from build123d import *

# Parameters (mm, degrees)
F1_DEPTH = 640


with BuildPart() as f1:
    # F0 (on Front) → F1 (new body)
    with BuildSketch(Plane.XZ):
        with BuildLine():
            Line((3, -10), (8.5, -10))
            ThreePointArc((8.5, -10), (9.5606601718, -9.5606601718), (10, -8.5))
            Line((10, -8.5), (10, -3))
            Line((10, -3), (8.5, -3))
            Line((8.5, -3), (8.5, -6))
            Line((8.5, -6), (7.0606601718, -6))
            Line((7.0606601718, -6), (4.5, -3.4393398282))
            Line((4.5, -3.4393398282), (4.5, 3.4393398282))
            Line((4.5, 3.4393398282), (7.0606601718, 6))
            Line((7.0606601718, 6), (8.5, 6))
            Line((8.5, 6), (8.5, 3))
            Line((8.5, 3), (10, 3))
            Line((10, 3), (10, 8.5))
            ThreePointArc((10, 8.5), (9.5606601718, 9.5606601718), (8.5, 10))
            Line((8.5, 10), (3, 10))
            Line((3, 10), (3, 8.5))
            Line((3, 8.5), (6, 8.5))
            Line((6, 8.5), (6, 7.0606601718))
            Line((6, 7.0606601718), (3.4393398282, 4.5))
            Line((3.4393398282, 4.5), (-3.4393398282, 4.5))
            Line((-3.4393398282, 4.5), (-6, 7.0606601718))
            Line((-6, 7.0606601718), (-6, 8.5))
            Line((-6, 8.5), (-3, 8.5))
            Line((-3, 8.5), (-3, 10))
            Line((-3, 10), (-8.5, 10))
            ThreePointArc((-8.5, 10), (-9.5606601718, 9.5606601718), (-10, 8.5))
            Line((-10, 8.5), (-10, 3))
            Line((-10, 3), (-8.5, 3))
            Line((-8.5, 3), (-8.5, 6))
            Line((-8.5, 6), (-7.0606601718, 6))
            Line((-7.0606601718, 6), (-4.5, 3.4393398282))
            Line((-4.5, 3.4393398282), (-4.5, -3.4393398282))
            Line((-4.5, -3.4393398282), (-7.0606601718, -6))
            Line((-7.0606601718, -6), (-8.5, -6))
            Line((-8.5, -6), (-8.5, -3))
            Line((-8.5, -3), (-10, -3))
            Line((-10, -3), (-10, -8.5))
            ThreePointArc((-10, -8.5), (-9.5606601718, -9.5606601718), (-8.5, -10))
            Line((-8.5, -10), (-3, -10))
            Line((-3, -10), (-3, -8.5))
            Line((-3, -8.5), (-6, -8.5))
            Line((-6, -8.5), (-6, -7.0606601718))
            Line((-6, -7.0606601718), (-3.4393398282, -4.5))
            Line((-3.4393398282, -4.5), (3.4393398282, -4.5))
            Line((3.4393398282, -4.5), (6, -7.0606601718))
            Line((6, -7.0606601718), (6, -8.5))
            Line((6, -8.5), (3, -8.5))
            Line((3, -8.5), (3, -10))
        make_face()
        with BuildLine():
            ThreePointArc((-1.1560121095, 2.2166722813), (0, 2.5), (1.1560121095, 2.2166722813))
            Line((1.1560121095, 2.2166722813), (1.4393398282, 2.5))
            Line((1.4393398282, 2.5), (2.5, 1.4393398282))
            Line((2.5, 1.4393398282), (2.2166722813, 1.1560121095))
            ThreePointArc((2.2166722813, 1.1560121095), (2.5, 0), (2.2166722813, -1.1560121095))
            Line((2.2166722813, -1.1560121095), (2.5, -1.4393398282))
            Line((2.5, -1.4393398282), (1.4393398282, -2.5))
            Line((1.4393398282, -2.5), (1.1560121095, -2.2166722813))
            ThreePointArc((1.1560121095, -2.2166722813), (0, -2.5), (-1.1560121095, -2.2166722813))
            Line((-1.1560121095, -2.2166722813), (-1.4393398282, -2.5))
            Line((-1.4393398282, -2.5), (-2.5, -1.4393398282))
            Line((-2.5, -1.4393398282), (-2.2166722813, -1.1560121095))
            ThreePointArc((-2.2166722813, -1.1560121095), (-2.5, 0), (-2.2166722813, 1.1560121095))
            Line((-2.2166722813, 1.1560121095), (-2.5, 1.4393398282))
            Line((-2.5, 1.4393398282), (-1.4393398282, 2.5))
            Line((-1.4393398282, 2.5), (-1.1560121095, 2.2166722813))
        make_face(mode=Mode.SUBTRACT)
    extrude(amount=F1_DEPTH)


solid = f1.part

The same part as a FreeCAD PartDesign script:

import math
import FreeCAD as App
import Part
import Sketcher
from FreeCAD import Vector

doc = App.newDocument("Part")
body = doc.addObject("PartDesign::Body", "Body")

# Sketch on XZ plane
sketch1 = doc.addObject("Sketcher::SketchObject", "Sketch")
body.addObject(sketch1)
sketch1.AttachmentSupport = (doc.XZ_Plane, [""])
sketch1.MapMode = "FlatFace"
sketch1.addGeometry(Part.LineSegment(Vector(3, -10, 0), Vector(8.5, -10, 0)), False)
sketch1.addGeometry(Part.ArcOfCircle(Part.Circle(Vector(8.5, -8.5, 0), Vector(0, 0, 1), 1.5), math.radians(-90), math.radians(0)), False)
sketch1.addGeometry(Part.LineSegment(Vector(10, -8.5, 0), Vector(10, -3, 0)), False)
sketch1.addGeometry(Part.LineSegment(Vector(10, -3, 0), Vector(8.5, -3, 0)), False)
sketch1.addGeometry(Part.LineSegment(Vector(8.5, -3, 0), Vector(8.5, -6, 0)), False)
sketch1.addGeometry(Part.LineSegment(Vector(8.5, -6, 0), Vector(7.06, -6, 0)), False)
sketch1.addGeometry(Part.LineSegment(Vector(7.06, -6, 0), Vector(4.5, -3.44, 0)), False)
sketch1.addGeometry(Part.LineSegment(Vector(4.5, -3.44, 0), Vector(4.5, 3.44, 0)), False)
sketch1.addGeometry(Part.LineSegment(Vector(4.5, 3.44, 0), Vector(7.06, 6, 0)), False)
sketch1.addGeometry(Part.LineSegment(Vector(7.06, 6, 0), Vector(8.5, 6, 0)), False)
sketch1.addGeometry(Part.LineSegment(Vector(8.5, 6, 0), Vector(8.5, 3, 0)), False)
sketch1.addGeometry(Part.LineSegment(Vector(8.5, 3, 0), Vector(10, 3, 0)), False)
sketch1.addGeometry(Part.LineSegment(Vector(10, 3, 0), Vector(10, 8.5, 0)), False)
sketch1.addGeometry(Part.ArcOfCircle(Part.Circle(Vector(8.5, 8.5, 0), Vector(0, 0, 1), 1.5), math.radians(0), math.radians(90)), False)
sketch1.addGeometry(Part.LineSegment(Vector(8.5, 10, 0), Vector(3, 10, 0)), False)
sketch1.addGeometry(Part.LineSegment(Vector(3, 10, 0), Vector(3, 8.5, 0)), False)
sketch1.addGeometry(Part.LineSegment(Vector(3, 8.5, 0), Vector(6, 8.5, 0)), False)
sketch1.addGeometry(Part.LineSegment(Vector(6, 8.5, 0), Vector(6, 7.06, 0)), False)
sketch1.addGeometry(Part.LineSegment(Vector(6, 7.06, 0), Vector(3.44, 4.5, 0)), False)
sketch1.addGeometry(Part.LineSegment(Vector(3.44, 4.5, 0), Vector(-3.44, 4.5, 0)), False)
sketch1.addGeometry(Part.LineSegment(Vector(-3.44, 4.5, 0), Vector(-6, 7.06, 0)), False)
sketch1.addGeometry(Part.LineSegment(Vector(-6, 7.06, 0), Vector(-6, 8.5, 0)), False)
sketch1.addGeometry(Part.LineSegment(Vector(-6, 8.5, 0), Vector(-3, 8.5, 0)), False)
sketch1.addGeometry(Part.LineSegment(Vector(-3, 8.5, 0), Vector(-3, 10, 0)), False)
sketch1.addGeometry(Part.LineSegment(Vector(-3, 10, 0), Vector(-8.5, 10, 0)), False)
sketch1.addGeometry(Part.ArcOfCircle(Part.Circle(Vector(-8.5, 8.5, 0), Vector(0, 0, 1), 1.5), math.radians(90), math.radians(180)), False)
sketch1.addGeometry(Part.LineSegment(Vector(-10, 8.5, 0), Vector(-10, 3, 0)), False)
sketch1.addGeometry(Part.LineSegment(Vector(-10, 3, 0), Vector(-8.5, 3, 0)), False)
sketch1.addGeometry(Part.LineSegment(Vector(-8.5, 3, 0), Vector(-8.5, 6, 0)), False)
sketch1.addGeometry(Part.LineSegment(Vector(-8.5, 6, 0), Vector(-7.06, 6, 0)), False)
sketch1.addGeometry(Part.LineSegment(Vector(-7.06, 6, 0), Vector(-4.5, 3.44, 0)), False)
sketch1.addGeometry(Part.LineSegment(Vector(-4.5, 3.44, 0), Vector(-4.5, -3.44, 0)), False)
sketch1.addGeometry(Part.LineSegment(Vector(-4.5, -3.44, 0), Vector(-7.06, -6, 0)), False)
sketch1.addGeometry(Part.LineSegment(Vector(-7.06, -6, 0), Vector(-8.5, -6, 0)), False)
sketch1.addGeometry(Part.LineSegment(Vector(-8.5, -6, 0), Vector(-8.5, -3, 0)), False)
sketch1.addGeometry(Part.LineSegment(Vector(-8.5, -3, 0), Vector(-10, -3, 0)), False)
sketch1.addGeometry(Part.LineSegment(Vector(-10, -3, 0), Vector(-10, -8.5, 0)), False)
sketch1.addGeometry(Part.ArcOfCircle(Part.Circle(Vector(-8.5, -8.5, 0), Vector(0, 0, 1), 1.5), math.radians(180), math.radians(270)), False)
sketch1.addGeometry(Part.LineSegment(Vector(-8.5, -10, 0), Vector(-3, -10, 0)), False)
sketch1.addGeometry(Part.LineSegment(Vector(-3, -10, 0), Vector(-3, -8.5, 0)), False)
sketch1.addGeometry(Part.LineSegment(Vector(-3, -8.5, 0), Vector(-6, -8.5, 0)), False)
sketch1.addGeometry(Part.LineSegment(Vector(-6, -8.5, 0), Vector(-6, -7.06, 0)), False)
sketch1.addGeometry(Part.LineSegment(Vector(-6, -7.06, 0), Vector(-3.44, -4.5, 0)), False)
sketch1.addGeometry(Part.LineSegment(Vector(-3.44, -4.5, 0), Vector(3.44, -4.5, 0)), False)
sketch1.addGeometry(Part.LineSegment(Vector(3.44, -4.5, 0), Vector(6, -7.06, 0)), False)
sketch1.addGeometry(Part.LineSegment(Vector(6, -7.06, 0), Vector(6, -8.5, 0)), False)
sketch1.addGeometry(Part.LineSegment(Vector(6, -8.5, 0), Vector(3, -8.5, 0)), False)
sketch1.addGeometry(Part.LineSegment(Vector(3, -8.5, 0), Vector(3, -10, 0)), False)
sketch1.addGeometry(Part.LineSegment(Vector(-1.44, 2.5, 0), Vector(-1.16, 2.22, 0)), False)
sketch1.addGeometry(Part.ArcOfCircle(Part.Circle(Vector(0, 0, 0), Vector(0, 0, 1), 2.5), math.radians(62), math.radians(118)), False)
sketch1.addGeometry(Part.LineSegment(Vector(1.16, 2.22, 0), Vector(1.44, 2.5, 0)), False)
sketch1.addGeometry(Part.LineSegment(Vector(1.44, 2.5, 0), Vector(2.5, 1.44, 0)), False)
sketch1.addGeometry(Part.LineSegment(Vector(2.5, 1.44, 0), Vector(2.22, 1.16, 0)), False)
sketch1.addGeometry(Part.ArcOfCircle(Part.Circle(Vector(0, 0, 0), Vector(0, 0, 1), 2.5), math.radians(-28), math.radians(28)), False)
sketch1.addGeometry(Part.LineSegment(Vector(2.22, -1.16, 0), Vector(2.5, -1.44, 0)), False)
sketch1.addGeometry(Part.LineSegment(Vector(2.5, -1.44, 0), Vector(1.44, -2.5, 0)), False)
sketch1.addGeometry(Part.LineSegment(Vector(1.44, -2.5, 0), Vector(1.16, -2.22, 0)), False)
sketch1.addGeometry(Part.ArcOfCircle(Part.Circle(Vector(0, 0, 0), Vector(0, 0, 1), 2.5), math.radians(-118), math.radians(-62)), False)
sketch1.addGeometry(Part.LineSegment(Vector(-1.16, -2.22, 0), Vector(-1.44, -2.5, 0)), False)
sketch1.addGeometry(Part.LineSegment(Vector(-1.44, -2.5, 0), Vector(-2.5, -1.44, 0)), False)
sketch1.addGeometry(Part.LineSegment(Vector(-2.5, -1.44, 0), Vector(-2.22, -1.16, 0)), False)
sketch1.addGeometry(Part.ArcOfCircle(Part.Circle(Vector(0, 0, 0), Vector(0, 0, 1), 2.5), math.radians(152), math.radians(208)), False)
sketch1.addGeometry(Part.LineSegment(Vector(-2.22, 1.16, 0), Vector(-2.5, 1.44, 0)), False)
sketch1.addGeometry(Part.LineSegment(Vector(-2.5, 1.44, 0), Vector(-1.44, 2.5, 0)), False)
sketch1.addConstraint(Sketcher.Constraint("Tangent", 0, 2, 1, 1))
sketch1.addConstraint(Sketcher.Constraint("Tangent", 1, 2, 2, 1))
sketch1.addConstraint(Sketcher.Constraint("Coincident", 2, 2, 3, 1))
sketch1.addConstraint(Sketcher.Constraint("Coincident", 3, 2, 4, 1))
sketch1.addConstraint(Sketcher.Constraint("Coincident", 4, 2, 5, 1))
sketch1.addConstraint(Sketcher.Constraint("Coincident", 5, 2, 6, 1))
sketch1.addConstraint(Sketcher.Constraint("Coincident", 6, 2, 7, 1))
sketch1.addConstraint(Sketcher.Constraint("Coincident", 7, 2, 8, 1))
sketch1.addConstraint(Sketcher.Constraint("Coincident", 8, 2, 9, 1))
sketch1.addConstraint(Sketcher.Constraint("Coincident", 9, 2, 10, 1))
sketch1.addConstraint(Sketcher.Constraint("Coincident", 10, 2, 11, 1))
sketch1.addConstraint(Sketcher.Constraint("Coincident", 11, 2, 12, 1))
sketch1.addConstraint(Sketcher.Constraint("Tangent", 12, 2, 13, 1))
sketch1.addConstraint(Sketcher.Constraint("Tangent", 13, 2, 14, 1))
sketch1.addConstraint(Sketcher.Constraint("Coincident", 14, 2, 15, 1))
sketch1.addConstraint(Sketcher.Constraint("Coincident", 15, 2, 16, 1))
sketch1.addConstraint(Sketcher.Constraint("Coincident", 16, 2, 17, 1))
sketch1.addConstraint(Sketcher.Constraint("Coincident", 17, 2, 18, 1))
sketch1.addConstraint(Sketcher.Constraint("Coincident", 18, 2, 19, 1))
sketch1.addConstraint(Sketcher.Constraint("Coincident", 19, 2, 20, 1))
sketch1.addConstraint(Sketcher.Constraint("Coincident", 20, 2, 21, 1))
sketch1.addConstraint(Sketcher.Constraint("Coincident", 21, 2, 22, 1))
sketch1.addConstraint(Sketcher.Constraint("Coincident", 22, 2, 23, 1))
sketch1.addConstraint(Sketcher.Constraint("Coincident", 23, 2, 24, 1))
sketch1.addConstraint(Sketcher.Constraint("Tangent", 24, 2, 25, 1))
sketch1.addConstraint(Sketcher.Constraint("Tangent", 25, 2, 26, 1))
sketch1.addConstraint(Sketcher.Constraint("Coincident", 26, 2, 27, 1))
sketch1.addConstraint(Sketcher.Constraint("Coincident", 27, 2, 28, 1))
sketch1.addConstraint(Sketcher.Constraint("Coincident", 28, 2, 29, 1))
sketch1.addConstraint(Sketcher.Constraint("Coincident", 29, 2, 30, 1))
sketch1.addConstraint(Sketcher.Constraint("Coincident", 30, 2, 31, 1))
sketch1.addConstraint(Sketcher.Constraint("Coincident", 31, 2, 32, 1))
sketch1.addConstraint(Sketcher.Constraint("Coincident", 32, 2, 33, 1))
sketch1.addConstraint(Sketcher.Constraint("Coincident", 33, 2, 34, 1))
sketch1.addConstraint(Sketcher.Constraint("Coincident", 34, 2, 35, 1))
sketch1.addConstraint(Sketcher.Constraint("Coincident", 35, 2, 36, 1))
sketch1.addConstraint(Sketcher.Constraint("Tangent", 36, 2, 37, 1))
sketch1.addConstraint(Sketcher.Constraint("Tangent", 37, 2, 38, 1))
sketch1.addConstraint(Sketcher.Constraint("Coincident", 38, 2, 39, 1))
sketch1.addConstraint(Sketcher.Constraint("Coincident", 39, 2, 40, 1))
sketch1.addConstraint(Sketcher.Constraint("Coincident", 40, 2, 41, 1))
sketch1.addConstraint(Sketcher.Constraint("Coincident", 41, 2, 42, 1))
sketch1.addConstraint(Sketcher.Constraint("Coincident", 42, 2, 43, 1))
sketch1.addConstraint(Sketcher.Constraint("Coincident", 43, 2, 44, 1))
sketch1.addConstraint(Sketcher.Constraint("Coincident", 44, 2, 45, 1))
sketch1.addConstraint(Sketcher.Constraint("Coincident", 45, 2, 46, 1))
sketch1.addConstraint(Sketcher.Constraint("Coincident", 46, 2, 47, 1))
sketch1.addConstraint(Sketcher.Constraint("Coincident", 47, 2, 0, 1))
sketch1.addConstraint(Sketcher.Constraint("Coincident", 48, 2, 49, 2))
sketch1.addConstraint(Sketcher.Constraint("Coincident", 49, 1, 50, 1))
sketch1.addConstraint(Sketcher.Constraint("Coincident", 50, 2, 51, 1))
sketch1.addConstraint(Sketcher.Constraint("Coincident", 51, 2, 52, 1))
sketch1.addConstraint(Sketcher.Constraint("Coincident", 52, 2, 53, 2))
sketch1.addConstraint(Sketcher.Constraint("Coincident", 53, 1, 54, 1))
sketch1.addConstraint(Sketcher.Constraint("Coincident", 54, 2, 55, 1))
sketch1.addConstraint(Sketcher.Constraint("Coincident", 55, 2, 56, 1))
sketch1.addConstraint(Sketcher.Constraint("Coincident", 56, 2, 57, 2))
sketch1.addConstraint(Sketcher.Constraint("Coincident", 57, 1, 58, 1))
sketch1.addConstraint(Sketcher.Constraint("Coincident", 58, 2, 59, 1))
sketch1.addConstraint(Sketcher.Constraint("Coincident", 59, 2, 60, 1))
sketch1.addConstraint(Sketcher.Constraint("Coincident", 60, 2, 61, 2))
sketch1.addConstraint(Sketcher.Constraint("Coincident", 61, 1, 62, 1))
sketch1.addConstraint(Sketcher.Constraint("Coincident", 62, 2, 63, 1))
sketch1.addConstraint(Sketcher.Constraint("Coincident", 63, 2, 48, 1))
sketch1.addConstraint(Sketcher.Constraint("Horizontal", 0))
sketch1.addConstraint(Sketcher.Constraint("Vertical", 2))
sketch1.addConstraint(Sketcher.Constraint("Horizontal", 3))
sketch1.addConstraint(Sketcher.Constraint("Vertical", 4))
sketch1.addConstraint(Sketcher.Constraint("Horizontal", 5))
sketch1.addConstraint(Sketcher.Constraint("Vertical", 7))
sketch1.addConstraint(Sketcher.Constraint("Horizontal", 9))
sketch1.addConstraint(Sketcher.Constraint("Vertical", 10))
sketch1.addConstraint(Sketcher.Constraint("Horizontal", 11))
sketch1.addConstraint(Sketcher.Constraint("Vertical", 12))
sketch1.addConstraint(Sketcher.Constraint("Horizontal", 14))
sketch1.addConstraint(Sketcher.Constraint("Vertical", 15))
sketch1.addConstraint(Sketcher.Constraint("Horizontal", 16))
sketch1.addConstraint(Sketcher.Constraint("Vertical", 17))
sketch1.addConstraint(Sketcher.Constraint("Horizontal", 19))
sketch1.addConstraint(Sketcher.Constraint("Vertical", 21))
sketch1.addConstraint(Sketcher.Constraint("Horizontal", 22))
sketch1.addConstraint(Sketcher.Constraint("Vertical", 23))
sketch1.addConstraint(Sketcher.Constraint("Horizontal", 24))
sketch1.addConstraint(Sketcher.Constraint("Vertical", 26))
sketch1.addConstraint(Sketcher.Constraint("Horizontal", 27))
sketch1.addConstraint(Sketcher.Constraint("Vertical", 28))
sketch1.addConstraint(Sketcher.Constraint("Horizontal", 29))
sketch1.addConstraint(Sketcher.Constraint("Vertical", 31))
sketch1.addConstraint(Sketcher.Constraint("Horizontal", 33))
sketch1.addConstraint(Sketcher.Constraint("Vertical", 34))
sketch1.addConstraint(Sketcher.Constraint("Horizontal", 35))
sketch1.addConstraint(Sketcher.Constraint("Vertical", 36))
sketch1.addConstraint(Sketcher.Constraint("Horizontal", 38))
sketch1.addConstraint(Sketcher.Constraint("Vertical", 39))
sketch1.addConstraint(Sketcher.Constraint("Horizontal", 40))
sketch1.addConstraint(Sketcher.Constraint("Vertical", 41))
sketch1.addConstraint(Sketcher.Constraint("Horizontal", 43))
sketch1.addConstraint(Sketcher.Constraint("Vertical", 45))
sketch1.addConstraint(Sketcher.Constraint("Horizontal", 46))
sketch1.addConstraint(Sketcher.Constraint("Vertical", 47))
sketch1.addConstraint(Sketcher.Constraint("Coincident", 49, 3, -1, 1))
sketch1.addConstraint(Sketcher.Constraint("Coincident", 53, 3, -1, 1))
sketch1.addConstraint(Sketcher.Constraint("Coincident", 57, 3, -1, 1))
sketch1.addConstraint(Sketcher.Constraint("Coincident", 61, 3, -1, 1))
sketch1.addConstraint(Sketcher.Constraint("Equal", 1, 13))
sketch1.addConstraint(Sketcher.Constraint("Equal", 13, 25))
sketch1.addConstraint(Sketcher.Constraint("Equal", 25, 37))
sketch1.addConstraint(Sketcher.Constraint("Equal", 49, 53))
sketch1.addConstraint(Sketcher.Constraint("Equal", 53, 57))
sketch1.addConstraint(Sketcher.Constraint("Equal", 57, 61))
sketch1.addConstraint(Sketcher.Constraint("Symmetric", 1, 3, 25, 3, -1, 1))
sketch1.addConstraint(Sketcher.Constraint("Symmetric", 13, 3, 37, 3, -1, 1))
sketch1.addConstraint(Sketcher.Constraint("Symmetric", 3, 2, 27, 2, -1, 1))
sketch1.addConstraint(Sketcher.Constraint("Symmetric", 5, 2, 29, 2, -1, 1))
sketch1.addConstraint(Sketcher.Constraint("Symmetric", 6, 2, 30, 2, -1, 1))
sketch1.addConstraint(Sketcher.Constraint("Symmetric", 8, 2, 32, 2, -1, 1))
sketch1.addConstraint(Sketcher.Constraint("Symmetric", 10, 2, 34, 2, -1, 1))
sketch1.addConstraint(Sketcher.Constraint("Symmetric", 15, 2, 39, 2, -1, 1))
sketch1.addConstraint(Sketcher.Constraint("Symmetric", 17, 2, 41, 2, -1, 1))
sketch1.addConstraint(Sketcher.Constraint("Symmetric", 18, 2, 42, 2, -1, 1))
sketch1.addConstraint(Sketcher.Constraint("Symmetric", 20, 2, 44, 2, -1, 1))
sketch1.addConstraint(Sketcher.Constraint("Symmetric", 22, 2, 46, 2, -1, 1))
sketch1.addConstraint(Sketcher.Constraint("Symmetric", 50, 2, 58, 2, -1, 1))
sketch1.addConstraint(Sketcher.Constraint("Symmetric", 51, 2, 59, 2, -1, 1))
sketch1.addConstraint(Sketcher.Constraint("Symmetric", 54, 2, 62, 2, -1, 1))
sketch1.addConstraint(Sketcher.Constraint("Symmetric", 55, 2, 63, 2, -1, 1))
sketch1.addConstraint(Sketcher.Constraint("Symmetric", 13, 3, 25, 3, -2))
sketch1.addConstraint(Sketcher.Constraint("Symmetric", 17, 2, 20, 2, -2))
sketch1.addConstraint(Sketcher.Constraint("Symmetric", 15, 2, 22, 2, -2))
sketch1.addConstraint(Sketcher.Constraint("Symmetric", 10, 2, 27, 2, -2))
sketch1.addConstraint(Sketcher.Constraint("Symmetric", 8, 2, 29, 2, -2))
sketch1.addConstraint(Sketcher.Constraint("Symmetric", 55, 2, 58, 2, -2))
sketch1.addConstraint(Sketcher.Constraint("Symmetric", 54, 2, 59, 2, -2))
sketch1.addConstraint(Sketcher.Constraint("Perpendicular", 6, 8))
sketch1.addConstraint(Sketcher.Constraint("Parallel", 8, 18))
sketch1.addConstraint(Sketcher.Constraint("Perpendicular", 18, 20))
sketch1.addConstraint(Sketcher.Constraint("Perpendicular", 30, 32))
sketch1.addConstraint(Sketcher.Constraint("Perpendicular", 42, 44))
sketch1.addConstraint(Sketcher.Constraint("Parallel", 44, 48))
sketch1.addConstraint(Sketcher.Constraint("Perpendicular", 48, 50))
sketch1.addConstraint(Sketcher.Constraint("Perpendicular", 50, 51))
sketch1.addConstraint(Sketcher.Constraint("Perpendicular", 51, 52))
sketch1.addConstraint(Sketcher.Constraint("Perpendicular", 52, 54))
sketch1.addConstraint(Sketcher.Constraint("Perpendicular", 54, 55))
sketch1.addConstraint(Sketcher.Constraint("Perpendicular", 55, 56))
sketch1.addConstraint(Sketcher.Constraint("Perpendicular", 56, 58))
sketch1.addConstraint(Sketcher.Constraint("Perpendicular", 59, 60))
sketch1.addConstraint(Sketcher.Constraint("Perpendicular", 60, 62))
sketch1.addConstraint(Sketcher.Constraint("Horizontal", 12, 2, 15, 2))
sketch1.addConstraint(Sketcher.Constraint("Vertical", 0, 2, 3, 2))
sketch1.addConstraint(Sketcher.Constraint("Equal", 38, 2))
sketch1.addConstraint(Sketcher.Constraint("Equal", 46, 4))
sketch1.addConstraint(Sketcher.Constraint("Equal", 43, 7))
sketch1.addConstraint(Sketcher.Constraint("Equal", 33, 17))
sketch1.addConstraint(Sketcher.Constraint("Equal", 8, 18))
sketch1.addConstraint(Sketcher.Constraint("Equal", 50, 52))
sketch1.addConstraint(Sketcher.Constraint("Radius", 1, 1.5))
sketch1.addConstraint(Sketcher.Constraint("Radius", 49, 2.5))
sketch1.addConstraint(Sketcher.Constraint("DistanceX", 16, 1, 16, 2, 3.0))
sketch1.addConstraint(Sketcher.Constraint("DistanceX", 0, 1, 0, 2, 5.5))
sketch1.addConstraint(Sketcher.Constraint("DistanceY", 0, 2, -1, 1, 10.0))
sketch1.addConstraint(Sketcher.Constraint("Distance", 51, 1.5))
sketch1.addConstraint(Sketcher.Constraint("DistanceX", -1, 1, 6, 2, 4.5))
sketch1.addConstraint(Sketcher.Constraint("DistanceY", -1, 1, 50, 2, 2.5))
sketch1.addConstraint(Sketcher.Constraint("DistanceX", 5, 2, 5, 1, 1.43934))
pad1 = doc.addObject("PartDesign::Pad", "Pad")
body.addObject(pad1)
pad1.Profile = sketch1
pad1.Length = 640

doc.recompute()
